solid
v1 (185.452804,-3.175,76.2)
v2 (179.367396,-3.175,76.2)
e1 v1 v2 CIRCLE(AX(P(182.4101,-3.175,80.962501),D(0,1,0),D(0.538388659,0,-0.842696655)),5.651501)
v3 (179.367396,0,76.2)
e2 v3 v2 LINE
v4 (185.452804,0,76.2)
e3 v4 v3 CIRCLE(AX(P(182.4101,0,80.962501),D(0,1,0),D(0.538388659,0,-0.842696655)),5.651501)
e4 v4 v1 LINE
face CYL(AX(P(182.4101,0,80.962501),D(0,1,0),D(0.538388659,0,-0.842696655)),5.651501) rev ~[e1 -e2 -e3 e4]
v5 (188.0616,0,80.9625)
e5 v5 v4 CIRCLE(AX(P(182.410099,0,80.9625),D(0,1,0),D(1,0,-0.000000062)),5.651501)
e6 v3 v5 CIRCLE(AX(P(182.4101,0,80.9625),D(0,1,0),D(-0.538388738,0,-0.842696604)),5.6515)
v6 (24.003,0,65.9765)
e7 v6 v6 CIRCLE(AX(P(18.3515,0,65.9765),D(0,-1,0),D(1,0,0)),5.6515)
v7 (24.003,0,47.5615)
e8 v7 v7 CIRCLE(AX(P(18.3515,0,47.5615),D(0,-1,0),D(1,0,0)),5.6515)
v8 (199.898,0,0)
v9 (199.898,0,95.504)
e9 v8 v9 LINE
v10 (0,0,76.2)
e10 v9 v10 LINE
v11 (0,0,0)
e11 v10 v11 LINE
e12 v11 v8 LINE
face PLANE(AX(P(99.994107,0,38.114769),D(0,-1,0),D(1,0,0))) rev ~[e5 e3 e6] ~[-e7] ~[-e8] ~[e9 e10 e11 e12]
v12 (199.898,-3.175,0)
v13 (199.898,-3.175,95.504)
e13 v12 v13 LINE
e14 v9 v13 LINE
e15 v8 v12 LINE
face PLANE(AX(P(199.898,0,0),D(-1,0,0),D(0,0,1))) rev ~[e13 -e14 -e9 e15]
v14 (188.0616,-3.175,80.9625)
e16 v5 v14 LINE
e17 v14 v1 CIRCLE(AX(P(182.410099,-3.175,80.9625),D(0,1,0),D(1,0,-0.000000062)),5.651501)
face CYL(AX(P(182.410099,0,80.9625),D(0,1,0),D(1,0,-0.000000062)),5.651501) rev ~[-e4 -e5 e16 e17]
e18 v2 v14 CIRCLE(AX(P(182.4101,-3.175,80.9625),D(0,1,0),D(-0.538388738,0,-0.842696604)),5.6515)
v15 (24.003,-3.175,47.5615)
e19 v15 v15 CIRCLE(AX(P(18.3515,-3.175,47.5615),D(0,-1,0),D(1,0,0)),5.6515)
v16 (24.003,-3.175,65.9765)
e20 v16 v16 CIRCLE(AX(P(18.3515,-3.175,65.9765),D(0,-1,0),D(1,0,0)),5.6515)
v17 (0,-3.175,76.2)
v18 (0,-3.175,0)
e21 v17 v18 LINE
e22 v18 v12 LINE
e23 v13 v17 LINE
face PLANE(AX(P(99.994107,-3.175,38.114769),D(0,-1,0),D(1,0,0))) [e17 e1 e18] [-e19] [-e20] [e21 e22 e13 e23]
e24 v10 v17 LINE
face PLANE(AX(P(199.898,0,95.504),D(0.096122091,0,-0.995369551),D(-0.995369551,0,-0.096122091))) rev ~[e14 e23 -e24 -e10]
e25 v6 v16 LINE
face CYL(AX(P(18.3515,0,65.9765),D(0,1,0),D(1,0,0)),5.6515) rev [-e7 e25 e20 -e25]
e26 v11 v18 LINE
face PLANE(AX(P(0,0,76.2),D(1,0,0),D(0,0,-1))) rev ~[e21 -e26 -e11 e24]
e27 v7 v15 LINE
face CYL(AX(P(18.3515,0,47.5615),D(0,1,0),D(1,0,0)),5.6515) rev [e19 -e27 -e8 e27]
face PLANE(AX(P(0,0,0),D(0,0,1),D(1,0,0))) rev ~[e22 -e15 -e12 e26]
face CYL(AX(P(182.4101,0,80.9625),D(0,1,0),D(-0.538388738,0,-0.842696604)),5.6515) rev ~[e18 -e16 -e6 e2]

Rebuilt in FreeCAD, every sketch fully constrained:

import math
import FreeCAD as App
import Part
import Sketcher

V = App.Vector
Q = App.Units.Quantity


def add_polygon(sketch, points):
    """Adds a closed chain of lines whose ends are joined by coincident constraints."""
    first, n = sketch.GeometryCount, len(points)
    for a, b in zip(points, points[1:] + points[:1]):
        sketch.addGeometry(Part.LineSegment(App.Vector(*a, 0), App.Vector(*b, 0)), False)
    for i in range(n):
        sketch.addConstraint(Sketcher.Constraint("Coincident", first + i, 2, first + (i + 1) % n, 1))

doc = App.newDocument("Part")
body = doc.addObject("PartDesign::Body", "Body")

sketch1 = body.newObject("Sketcher::SketchObject", "Sketch")
sketch1.AttachmentSupport = (doc.getObject("XZ_Plane"), [""])
sketch1.MapMode = "FlatFace"
add_polygon(sketch1, [(0, 76), (0, 0), (200, 0), (200, 96)])
sketch1.addGeometry(Part.ArcOfCircle(Part.Circle(V(182, 81, 0), V(0, 0, 1), 6), math.radians(-123), math.radians(-57)), False)
sketch1.addGeometry(Part.ArcOfCircle(Part.Circle(V(182, 81, 0), V(0, 0, 1), 6), math.radians(0), math.radians(237)), False)
sketch1.addGeometry(Part.ArcOfCircle(Part.Circle(V(182, 81, 0), V(0, 0, 1), 6), math.radians(-57), math.radians(0)), False)
sketch1.addGeometry(Part.Circle(V(18, 48, 0), V(0, 0, 1), 6), False)
sketch1.addGeometry(Part.Circle(V(18, 66, 0), V(0, 0, 1), 6), False)
sketch1.addConstraint([
    Sketcher.Constraint("Tangent", 4, 1, 5, 2),
    Sketcher.Constraint("Tangent", 5, 1, 6, 2),
    Sketcher.Constraint("Tangent", 6, 1, 4, 2),
    Sketcher.Constraint("Vertical", 0),
    Sketcher.Constraint("Horizontal", 1),
    Sketcher.Constraint("Vertical", 2),
    Sketcher.Constraint("Coincident", 0, 2, -1, 1),
    Sketcher.Constraint("Equal", 6, 7),
    Sketcher.Constraint("Equal", 7, 8),
    Sketcher.Constraint("Horizontal", 3, 2, 4, 1),
    Sketcher.Constraint("Horizontal", 6, 3, 5, 1),
    Sketcher.Constraint("Horizontal", 4, 1, 6, 1),
    Sketcher.Constraint("Vertical", 7, 3, 8, 3),
    Sketcher.Constraint("DistanceY", 0, 2, 0, 1, Q("3 in")),
    Sketcher.Constraint("Diameter", 7, Q("0.445 in")),
    Sketcher.Constraint("DistanceX", 1, 1, 1, 2, Q("7.87 in")),
    Sketcher.Constraint("DistanceY", 2, 1, 2, 2, Q("3.76 in")),
    Sketcher.Constraint("DistanceY", 8, 3, 6, 3, Q("0.59 in")),
    Sketcher.Constraint("DistanceY", -1, 1, 4, 3, Q("3.1875 in")),
    Sketcher.Constraint("DistanceX", -1, 1, 5, 1, Q("7.404 in")),
    Sketcher.Constraint("DistanceX", 7, 3, 6, 3, Q("6.459 in")),
    Sketcher.Constraint("DistanceY", 7, 3, 6, 3, Q("1.315 in")),
])
pad1 = body.newObject("PartDesign::Pad", "Pad")
pad1.Profile = sketch1
pad1.Length = Q("0.125 in")

doc.recompute()
